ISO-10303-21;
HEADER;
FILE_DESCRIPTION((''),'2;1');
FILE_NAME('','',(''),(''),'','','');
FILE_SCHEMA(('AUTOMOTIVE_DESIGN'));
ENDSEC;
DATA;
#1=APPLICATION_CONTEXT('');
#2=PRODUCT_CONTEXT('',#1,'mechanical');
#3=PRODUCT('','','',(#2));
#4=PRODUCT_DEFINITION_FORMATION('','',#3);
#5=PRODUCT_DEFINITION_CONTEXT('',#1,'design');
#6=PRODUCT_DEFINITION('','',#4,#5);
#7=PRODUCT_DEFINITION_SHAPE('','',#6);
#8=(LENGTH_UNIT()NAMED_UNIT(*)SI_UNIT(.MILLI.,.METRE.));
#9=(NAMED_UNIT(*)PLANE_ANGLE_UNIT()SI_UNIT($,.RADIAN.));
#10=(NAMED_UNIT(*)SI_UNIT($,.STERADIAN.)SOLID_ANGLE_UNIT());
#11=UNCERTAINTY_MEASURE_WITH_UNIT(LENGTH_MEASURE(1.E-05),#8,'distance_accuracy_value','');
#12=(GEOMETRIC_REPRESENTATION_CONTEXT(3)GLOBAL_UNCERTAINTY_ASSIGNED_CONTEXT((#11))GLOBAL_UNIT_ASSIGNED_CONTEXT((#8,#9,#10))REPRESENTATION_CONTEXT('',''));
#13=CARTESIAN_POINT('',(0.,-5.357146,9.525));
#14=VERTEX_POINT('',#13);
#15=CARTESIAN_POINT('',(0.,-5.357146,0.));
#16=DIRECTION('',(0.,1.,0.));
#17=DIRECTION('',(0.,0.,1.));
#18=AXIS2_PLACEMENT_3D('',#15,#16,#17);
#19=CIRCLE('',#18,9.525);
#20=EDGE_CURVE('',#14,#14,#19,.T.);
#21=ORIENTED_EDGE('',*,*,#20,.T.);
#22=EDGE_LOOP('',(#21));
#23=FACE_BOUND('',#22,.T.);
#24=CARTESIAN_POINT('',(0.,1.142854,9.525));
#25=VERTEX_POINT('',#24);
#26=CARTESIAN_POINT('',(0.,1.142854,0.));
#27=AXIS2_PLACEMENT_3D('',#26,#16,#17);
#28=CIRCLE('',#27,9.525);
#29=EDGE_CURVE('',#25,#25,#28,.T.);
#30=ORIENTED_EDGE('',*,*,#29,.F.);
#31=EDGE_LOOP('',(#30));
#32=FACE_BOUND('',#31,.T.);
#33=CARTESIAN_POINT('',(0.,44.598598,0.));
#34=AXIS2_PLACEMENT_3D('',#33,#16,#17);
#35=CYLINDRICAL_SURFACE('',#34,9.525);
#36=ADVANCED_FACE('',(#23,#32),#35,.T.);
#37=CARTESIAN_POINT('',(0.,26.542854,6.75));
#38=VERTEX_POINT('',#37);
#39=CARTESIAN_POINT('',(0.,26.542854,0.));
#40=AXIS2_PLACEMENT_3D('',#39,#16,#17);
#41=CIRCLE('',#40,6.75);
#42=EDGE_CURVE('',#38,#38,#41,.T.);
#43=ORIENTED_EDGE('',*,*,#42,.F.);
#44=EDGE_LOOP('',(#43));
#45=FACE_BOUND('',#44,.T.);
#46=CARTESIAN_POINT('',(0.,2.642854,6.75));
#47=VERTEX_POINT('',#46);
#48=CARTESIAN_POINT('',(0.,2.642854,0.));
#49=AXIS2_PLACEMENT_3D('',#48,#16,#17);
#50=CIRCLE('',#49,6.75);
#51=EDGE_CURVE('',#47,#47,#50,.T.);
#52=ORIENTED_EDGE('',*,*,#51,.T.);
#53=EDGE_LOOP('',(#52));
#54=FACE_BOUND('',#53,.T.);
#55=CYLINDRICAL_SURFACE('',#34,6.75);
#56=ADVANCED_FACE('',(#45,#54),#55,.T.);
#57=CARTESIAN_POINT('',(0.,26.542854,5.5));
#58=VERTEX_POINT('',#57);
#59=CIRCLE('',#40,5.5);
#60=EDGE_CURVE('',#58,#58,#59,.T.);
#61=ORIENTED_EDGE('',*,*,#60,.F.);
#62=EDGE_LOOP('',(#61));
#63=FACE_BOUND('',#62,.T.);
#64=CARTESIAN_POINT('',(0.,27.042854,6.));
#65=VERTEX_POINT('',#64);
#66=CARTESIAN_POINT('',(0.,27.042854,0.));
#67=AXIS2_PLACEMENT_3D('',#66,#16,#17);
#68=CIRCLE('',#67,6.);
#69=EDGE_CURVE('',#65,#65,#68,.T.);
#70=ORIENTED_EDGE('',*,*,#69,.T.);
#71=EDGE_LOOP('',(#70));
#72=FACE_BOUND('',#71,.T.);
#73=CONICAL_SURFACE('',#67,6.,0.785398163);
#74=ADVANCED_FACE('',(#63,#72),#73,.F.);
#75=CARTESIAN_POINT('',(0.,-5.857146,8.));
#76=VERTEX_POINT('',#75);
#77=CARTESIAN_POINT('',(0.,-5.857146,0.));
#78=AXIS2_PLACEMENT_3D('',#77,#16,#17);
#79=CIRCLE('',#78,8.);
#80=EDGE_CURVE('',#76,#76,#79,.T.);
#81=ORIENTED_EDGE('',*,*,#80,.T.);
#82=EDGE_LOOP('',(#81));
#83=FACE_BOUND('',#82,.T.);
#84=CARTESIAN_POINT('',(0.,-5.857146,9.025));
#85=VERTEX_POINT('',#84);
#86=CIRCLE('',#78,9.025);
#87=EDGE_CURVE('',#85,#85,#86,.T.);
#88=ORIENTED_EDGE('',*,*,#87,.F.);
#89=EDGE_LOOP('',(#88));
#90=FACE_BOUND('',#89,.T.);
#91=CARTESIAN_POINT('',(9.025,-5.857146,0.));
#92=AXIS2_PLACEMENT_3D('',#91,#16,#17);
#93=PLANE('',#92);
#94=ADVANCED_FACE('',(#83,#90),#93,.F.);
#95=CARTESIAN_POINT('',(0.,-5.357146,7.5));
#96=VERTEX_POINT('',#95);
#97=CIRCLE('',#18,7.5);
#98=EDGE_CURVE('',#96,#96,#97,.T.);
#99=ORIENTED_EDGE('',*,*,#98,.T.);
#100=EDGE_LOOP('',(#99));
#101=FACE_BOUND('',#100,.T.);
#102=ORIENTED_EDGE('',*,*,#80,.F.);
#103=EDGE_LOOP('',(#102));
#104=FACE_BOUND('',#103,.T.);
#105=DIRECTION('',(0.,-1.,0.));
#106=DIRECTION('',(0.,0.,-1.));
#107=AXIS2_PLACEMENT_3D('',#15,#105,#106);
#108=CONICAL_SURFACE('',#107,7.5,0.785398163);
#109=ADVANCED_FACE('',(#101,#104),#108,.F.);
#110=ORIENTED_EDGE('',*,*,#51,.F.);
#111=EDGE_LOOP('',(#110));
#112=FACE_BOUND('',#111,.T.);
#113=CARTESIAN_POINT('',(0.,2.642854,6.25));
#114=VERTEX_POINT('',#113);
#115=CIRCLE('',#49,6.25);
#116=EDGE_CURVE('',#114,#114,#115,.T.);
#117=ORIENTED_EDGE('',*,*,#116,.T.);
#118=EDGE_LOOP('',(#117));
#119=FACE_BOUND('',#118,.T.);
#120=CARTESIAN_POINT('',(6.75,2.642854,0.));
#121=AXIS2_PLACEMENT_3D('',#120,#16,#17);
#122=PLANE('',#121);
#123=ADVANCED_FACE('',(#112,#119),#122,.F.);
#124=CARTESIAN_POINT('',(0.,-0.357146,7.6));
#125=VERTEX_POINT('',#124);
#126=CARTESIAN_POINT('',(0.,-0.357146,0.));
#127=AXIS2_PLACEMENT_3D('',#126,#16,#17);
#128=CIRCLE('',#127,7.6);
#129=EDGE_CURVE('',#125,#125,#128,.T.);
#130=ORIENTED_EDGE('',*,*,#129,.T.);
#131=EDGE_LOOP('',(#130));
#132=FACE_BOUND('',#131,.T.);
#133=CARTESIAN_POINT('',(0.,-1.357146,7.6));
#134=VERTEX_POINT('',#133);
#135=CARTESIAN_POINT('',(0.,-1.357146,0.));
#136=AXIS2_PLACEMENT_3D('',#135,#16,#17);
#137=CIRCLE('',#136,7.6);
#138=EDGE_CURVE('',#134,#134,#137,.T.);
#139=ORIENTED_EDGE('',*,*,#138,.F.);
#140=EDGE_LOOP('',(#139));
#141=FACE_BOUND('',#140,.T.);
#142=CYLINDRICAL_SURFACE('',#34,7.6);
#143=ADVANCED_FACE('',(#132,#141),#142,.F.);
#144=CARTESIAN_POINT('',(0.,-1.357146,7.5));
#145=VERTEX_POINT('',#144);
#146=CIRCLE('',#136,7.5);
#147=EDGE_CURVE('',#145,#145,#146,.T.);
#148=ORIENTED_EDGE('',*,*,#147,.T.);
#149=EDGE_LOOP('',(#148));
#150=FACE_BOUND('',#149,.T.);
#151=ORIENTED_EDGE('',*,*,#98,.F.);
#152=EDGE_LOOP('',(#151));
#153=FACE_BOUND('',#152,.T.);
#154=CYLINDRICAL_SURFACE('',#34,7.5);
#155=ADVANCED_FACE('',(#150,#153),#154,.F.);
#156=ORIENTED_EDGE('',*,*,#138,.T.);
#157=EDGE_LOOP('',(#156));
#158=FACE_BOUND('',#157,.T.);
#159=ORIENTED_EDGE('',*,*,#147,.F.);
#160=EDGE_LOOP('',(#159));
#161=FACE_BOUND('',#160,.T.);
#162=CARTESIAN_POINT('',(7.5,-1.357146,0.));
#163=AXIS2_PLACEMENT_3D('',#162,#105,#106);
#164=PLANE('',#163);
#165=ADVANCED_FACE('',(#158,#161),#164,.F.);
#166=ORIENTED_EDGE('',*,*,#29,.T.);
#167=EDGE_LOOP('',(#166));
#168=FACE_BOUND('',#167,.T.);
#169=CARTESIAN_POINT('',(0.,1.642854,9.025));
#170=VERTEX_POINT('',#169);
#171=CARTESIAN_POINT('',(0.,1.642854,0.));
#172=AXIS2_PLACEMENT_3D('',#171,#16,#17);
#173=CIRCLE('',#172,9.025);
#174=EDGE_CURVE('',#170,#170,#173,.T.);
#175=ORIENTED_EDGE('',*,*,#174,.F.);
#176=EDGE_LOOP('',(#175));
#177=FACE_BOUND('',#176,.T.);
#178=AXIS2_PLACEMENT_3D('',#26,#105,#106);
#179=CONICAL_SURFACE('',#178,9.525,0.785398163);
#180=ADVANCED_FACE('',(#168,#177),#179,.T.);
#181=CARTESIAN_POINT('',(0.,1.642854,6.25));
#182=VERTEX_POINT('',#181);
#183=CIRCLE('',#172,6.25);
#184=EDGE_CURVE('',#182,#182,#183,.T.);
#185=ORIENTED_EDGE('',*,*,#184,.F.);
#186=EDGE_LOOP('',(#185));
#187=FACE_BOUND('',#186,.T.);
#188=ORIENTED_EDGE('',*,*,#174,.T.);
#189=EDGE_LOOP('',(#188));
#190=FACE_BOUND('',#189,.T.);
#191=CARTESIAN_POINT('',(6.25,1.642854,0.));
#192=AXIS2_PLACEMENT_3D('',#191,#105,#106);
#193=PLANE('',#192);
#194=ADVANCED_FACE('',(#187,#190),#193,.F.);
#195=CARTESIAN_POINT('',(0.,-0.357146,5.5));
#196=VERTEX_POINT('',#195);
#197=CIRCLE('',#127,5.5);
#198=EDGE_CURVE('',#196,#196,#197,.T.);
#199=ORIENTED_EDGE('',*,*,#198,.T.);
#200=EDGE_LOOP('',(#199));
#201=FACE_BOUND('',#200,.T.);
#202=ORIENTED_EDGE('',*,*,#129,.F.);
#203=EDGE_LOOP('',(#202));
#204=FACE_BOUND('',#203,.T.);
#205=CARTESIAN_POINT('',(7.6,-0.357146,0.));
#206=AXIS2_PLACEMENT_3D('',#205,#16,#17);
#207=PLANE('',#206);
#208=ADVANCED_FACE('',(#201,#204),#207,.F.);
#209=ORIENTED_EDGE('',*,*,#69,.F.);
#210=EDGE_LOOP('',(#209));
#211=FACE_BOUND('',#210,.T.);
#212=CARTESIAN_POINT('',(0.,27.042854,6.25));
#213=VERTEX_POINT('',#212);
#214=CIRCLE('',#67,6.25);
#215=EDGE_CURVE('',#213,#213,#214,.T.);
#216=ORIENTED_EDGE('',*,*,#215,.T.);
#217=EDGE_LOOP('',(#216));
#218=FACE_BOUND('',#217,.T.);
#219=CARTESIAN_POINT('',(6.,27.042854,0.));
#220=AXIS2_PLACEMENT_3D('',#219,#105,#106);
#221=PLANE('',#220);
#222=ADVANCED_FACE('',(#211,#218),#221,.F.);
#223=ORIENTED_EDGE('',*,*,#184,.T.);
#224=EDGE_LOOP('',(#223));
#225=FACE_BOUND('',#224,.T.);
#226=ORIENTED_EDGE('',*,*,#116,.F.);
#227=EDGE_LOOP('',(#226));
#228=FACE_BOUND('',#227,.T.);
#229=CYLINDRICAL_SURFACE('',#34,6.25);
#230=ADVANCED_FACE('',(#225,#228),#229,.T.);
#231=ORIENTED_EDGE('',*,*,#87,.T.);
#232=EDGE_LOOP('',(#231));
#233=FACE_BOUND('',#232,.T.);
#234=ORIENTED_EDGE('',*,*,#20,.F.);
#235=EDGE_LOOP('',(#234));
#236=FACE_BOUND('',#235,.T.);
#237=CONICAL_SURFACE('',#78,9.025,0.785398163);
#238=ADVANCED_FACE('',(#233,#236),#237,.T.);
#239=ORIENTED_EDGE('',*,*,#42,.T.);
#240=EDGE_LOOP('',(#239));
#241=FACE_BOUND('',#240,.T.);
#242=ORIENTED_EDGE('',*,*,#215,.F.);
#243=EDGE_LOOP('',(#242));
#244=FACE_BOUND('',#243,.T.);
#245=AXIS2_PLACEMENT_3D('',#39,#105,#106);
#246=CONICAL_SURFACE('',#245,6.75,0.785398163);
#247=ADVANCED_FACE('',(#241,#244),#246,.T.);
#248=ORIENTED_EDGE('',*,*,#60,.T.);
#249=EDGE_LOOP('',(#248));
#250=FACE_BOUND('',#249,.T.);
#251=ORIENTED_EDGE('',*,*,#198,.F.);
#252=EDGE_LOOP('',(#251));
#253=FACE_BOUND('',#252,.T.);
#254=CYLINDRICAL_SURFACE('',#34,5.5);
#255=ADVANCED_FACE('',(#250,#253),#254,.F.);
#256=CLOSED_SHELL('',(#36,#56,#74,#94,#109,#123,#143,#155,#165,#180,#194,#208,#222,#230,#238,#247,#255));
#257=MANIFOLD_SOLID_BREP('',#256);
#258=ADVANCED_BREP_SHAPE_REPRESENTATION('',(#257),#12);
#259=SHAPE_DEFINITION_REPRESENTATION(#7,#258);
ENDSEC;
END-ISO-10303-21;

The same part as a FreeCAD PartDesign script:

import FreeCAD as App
import Part
import Sketcher
Q = App.Units.Quantity


def add_polygon(sketch, points):
    """Adds a closed chain of lines whose ends are joined by coincident constraints."""
    first, n = sketch.GeometryCount, len(points)
    for a, b in zip(points, points[1:] + points[:1]):
        sketch.addGeometry(Part.LineSegment(App.Vector(*a, 0), App.Vector(*b, 0)), False)
    for i in range(n):
        sketch.addConstraint(Sketcher.Constraint("Coincident", first + i, 2, first + (i + 1) % n, 1))

doc = App.newDocument("Part")
body = doc.addObject("PartDesign::Body", "Body")

sketch1 = body.newObject("Sketcher::SketchObject", "Sketch")
sketch1.AttachmentSupport = (doc.getObject("XY_Plane"), [""])
sketch1.MapMode = "FlatFace"
add_polygon(sketch1, [(6.25, 27.04), (6, 27.04), (5.5, 26.54), (5.5, -0.36), (7.6, -0.36), (7.6, -1.36), (7.5, -1.36), (7.5, -5.36), (8, -5.86), (9.03, -5.86), (9.53, -5.36), (9.53, 1.14), (9.03, 1.64), (6.25, 1.64), (6.25, 2.64), (6.75, 2.64), (6.75, 26.54)])
sketch1.addConstraint([
    Sketcher.Constraint("Horizontal", 0),
    Sketcher.Constraint("Vertical", 2),
    Sketcher.Constraint("Horizontal", 3),
    Sketcher.Constraint("Vertical", 4),
    Sketcher.Constraint("Horizontal", 5),
    Sketcher.Constraint("Vertical", 6),
    Sketcher.Constraint("Horizontal", 8),
    Sketcher.Constraint("Vertical", 10),
    Sketcher.Constraint("Horizontal", 12),
    Sketcher.Constraint("Vertical", 13),
    Sketcher.Constraint("Horizontal", 14),
    Sketcher.Constraint("Vertical", 15),
    Sketcher.Constraint("Perpendicular", 1, 7),
    Sketcher.Constraint("Perpendicular", 7, 9),
    Sketcher.Constraint("Perpendicular", 9, 11),
    Sketcher.Constraint("Parallel", 11, 16),
    Sketcher.Constraint("Horizontal", 6, 2, 9, 2),
    Sketcher.Constraint("Horizontal", 1, 2, 15, 2),
    Sketcher.Constraint("Vertical", 8, 2, 11, 2),
    Sketcher.Constraint("Vertical", 13, 2, 16, 2),
    Sketcher.Constraint("Equal", 4, 13),
    Sketcher.Constraint("Equal", 1, 7),
    Sketcher.Constraint("Equal", 7, 9),
    Sketcher.Constraint("DistanceY", 4, 2, 4, 1, Q("1 mm")),
    Sketcher.Constraint("DistanceY", 6, 2, 6, 1, Q("4 mm")),
    Sketcher.Constraint("DistanceX", 3, 1, 3, 2, Q("2.1 mm")),
    Sketcher.Constraint("DistanceX", 5, 2, 5, 1, Q("0.1 mm")),
    Sketcher.Constraint("DistanceX", 14, 1, 14, 2, Q("0.5 mm")),
    Sketcher.Constraint("DistanceY", 2, 2, 2, 1, Q("26.9 mm")),
    Sketcher.Constraint("DistanceY", 10, 1, 10, 2, Q("6.5 mm")),
    Sketcher.Constraint("DistanceX", -1, 1, 0, 2, Q("6 mm")),
    Sketcher.Constraint("DistanceX", 0, 2, 0, 1, Q("0.25 mm")),
    Sketcher.Constraint("DistanceX", 8, 1, 8, 2, Q("1.025 mm")),
    Sketcher.Constraint("DistanceY", -1, 1, 0, 2, Q("27.042854 mm")),
])
revolution = body.newObject("PartDesign::Revolution", "Revolution")
revolution.Profile = sketch1
revolution.ReferenceAxis = (sketch1, ["V_Axis"])
revolution.Angle = 360

doc.recompute()
